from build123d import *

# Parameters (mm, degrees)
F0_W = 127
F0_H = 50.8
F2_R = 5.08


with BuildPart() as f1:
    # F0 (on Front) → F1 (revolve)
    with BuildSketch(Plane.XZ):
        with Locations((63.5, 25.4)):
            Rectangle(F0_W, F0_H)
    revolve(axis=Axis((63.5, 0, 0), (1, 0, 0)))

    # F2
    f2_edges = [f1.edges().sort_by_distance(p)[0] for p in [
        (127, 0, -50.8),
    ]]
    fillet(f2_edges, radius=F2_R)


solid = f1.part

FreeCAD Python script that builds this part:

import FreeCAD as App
import Part
import Sketcher
Q = App.Units.Quantity


def edges_at(feature, points):
    """Names of the edges that pass closest to the given points."""
    edges = feature.Shape.Edges
    near = lambda p: min(range(len(edges)), key=lambda i: edges[i].distToShape(Part.Vertex(*p))[0])
    return sorted({f"Edge{near(p) + 1}" for p in points})


def add_polygon(sketch, points):
    """Adds a closed chain of lines whose ends are joined by coincident constraints."""
    first, n = sketch.GeometryCount, len(points)
    for a, b in zip(points, points[1:] + points[:1]):
        sketch.addGeometry(Part.LineSegment(App.Vector(*a, 0), App.Vector(*b, 0)), False)
    for i in range(n):
        sketch.addConstraint(Sketcher.Constraint("Coincident", first + i, 2, first + (i + 1) % n, 1))

doc = App.newDocument("Part")
body = doc.addObject("PartDesign::Body", "Body")

# Sketch on XZ plane
sketch1 = body.newObject("Sketcher::SketchObject", "Sketch")
sketch1.AttachmentSupport = (doc.getObject("XZ_Plane"), [""])
sketch1.MapMode = "FlatFace"
add_polygon(sketch1, [(0, 51), (0, 0), (127, 0), (127, 51)])  # lines 0-3
sketch1.addConstraint(Sketcher.Constraint("Vertical", 0))
sketch1.addConstraint(Sketcher.Constraint("Horizontal", 1))
sketch1.addConstraint(Sketcher.Constraint("Vertical", 2))
sketch1.addConstraint(Sketcher.Constraint("Horizontal", 3))
sketch1.addConstraint(Sketcher.Constraint("Coincident", 0, 2, -1, 1))
sketch1.addConstraint(Sketcher.Constraint("DistanceX", 1, 1, 1, 2, Q("5 in")))
sketch1.addConstraint(Sketcher.Constraint("DistanceY", 0, 2, 0, 1, Q("2 in")))
revolution = body.newObject("PartDesign::Revolution", "Revolution")
revolution.Profile = sketch1
revolution.ReferenceAxis = (sketch1, ["H_Axis"])
revolution.Angle = 360
doc.recompute()

fillet = body.newObject("PartDesign::Fillet", "Fillet")
fillet.Base = (revolution, edges_at(revolution, [(127, 0, -50.8)]))
fillet.Radius = Q("0.2 in")

doc.recompute()
